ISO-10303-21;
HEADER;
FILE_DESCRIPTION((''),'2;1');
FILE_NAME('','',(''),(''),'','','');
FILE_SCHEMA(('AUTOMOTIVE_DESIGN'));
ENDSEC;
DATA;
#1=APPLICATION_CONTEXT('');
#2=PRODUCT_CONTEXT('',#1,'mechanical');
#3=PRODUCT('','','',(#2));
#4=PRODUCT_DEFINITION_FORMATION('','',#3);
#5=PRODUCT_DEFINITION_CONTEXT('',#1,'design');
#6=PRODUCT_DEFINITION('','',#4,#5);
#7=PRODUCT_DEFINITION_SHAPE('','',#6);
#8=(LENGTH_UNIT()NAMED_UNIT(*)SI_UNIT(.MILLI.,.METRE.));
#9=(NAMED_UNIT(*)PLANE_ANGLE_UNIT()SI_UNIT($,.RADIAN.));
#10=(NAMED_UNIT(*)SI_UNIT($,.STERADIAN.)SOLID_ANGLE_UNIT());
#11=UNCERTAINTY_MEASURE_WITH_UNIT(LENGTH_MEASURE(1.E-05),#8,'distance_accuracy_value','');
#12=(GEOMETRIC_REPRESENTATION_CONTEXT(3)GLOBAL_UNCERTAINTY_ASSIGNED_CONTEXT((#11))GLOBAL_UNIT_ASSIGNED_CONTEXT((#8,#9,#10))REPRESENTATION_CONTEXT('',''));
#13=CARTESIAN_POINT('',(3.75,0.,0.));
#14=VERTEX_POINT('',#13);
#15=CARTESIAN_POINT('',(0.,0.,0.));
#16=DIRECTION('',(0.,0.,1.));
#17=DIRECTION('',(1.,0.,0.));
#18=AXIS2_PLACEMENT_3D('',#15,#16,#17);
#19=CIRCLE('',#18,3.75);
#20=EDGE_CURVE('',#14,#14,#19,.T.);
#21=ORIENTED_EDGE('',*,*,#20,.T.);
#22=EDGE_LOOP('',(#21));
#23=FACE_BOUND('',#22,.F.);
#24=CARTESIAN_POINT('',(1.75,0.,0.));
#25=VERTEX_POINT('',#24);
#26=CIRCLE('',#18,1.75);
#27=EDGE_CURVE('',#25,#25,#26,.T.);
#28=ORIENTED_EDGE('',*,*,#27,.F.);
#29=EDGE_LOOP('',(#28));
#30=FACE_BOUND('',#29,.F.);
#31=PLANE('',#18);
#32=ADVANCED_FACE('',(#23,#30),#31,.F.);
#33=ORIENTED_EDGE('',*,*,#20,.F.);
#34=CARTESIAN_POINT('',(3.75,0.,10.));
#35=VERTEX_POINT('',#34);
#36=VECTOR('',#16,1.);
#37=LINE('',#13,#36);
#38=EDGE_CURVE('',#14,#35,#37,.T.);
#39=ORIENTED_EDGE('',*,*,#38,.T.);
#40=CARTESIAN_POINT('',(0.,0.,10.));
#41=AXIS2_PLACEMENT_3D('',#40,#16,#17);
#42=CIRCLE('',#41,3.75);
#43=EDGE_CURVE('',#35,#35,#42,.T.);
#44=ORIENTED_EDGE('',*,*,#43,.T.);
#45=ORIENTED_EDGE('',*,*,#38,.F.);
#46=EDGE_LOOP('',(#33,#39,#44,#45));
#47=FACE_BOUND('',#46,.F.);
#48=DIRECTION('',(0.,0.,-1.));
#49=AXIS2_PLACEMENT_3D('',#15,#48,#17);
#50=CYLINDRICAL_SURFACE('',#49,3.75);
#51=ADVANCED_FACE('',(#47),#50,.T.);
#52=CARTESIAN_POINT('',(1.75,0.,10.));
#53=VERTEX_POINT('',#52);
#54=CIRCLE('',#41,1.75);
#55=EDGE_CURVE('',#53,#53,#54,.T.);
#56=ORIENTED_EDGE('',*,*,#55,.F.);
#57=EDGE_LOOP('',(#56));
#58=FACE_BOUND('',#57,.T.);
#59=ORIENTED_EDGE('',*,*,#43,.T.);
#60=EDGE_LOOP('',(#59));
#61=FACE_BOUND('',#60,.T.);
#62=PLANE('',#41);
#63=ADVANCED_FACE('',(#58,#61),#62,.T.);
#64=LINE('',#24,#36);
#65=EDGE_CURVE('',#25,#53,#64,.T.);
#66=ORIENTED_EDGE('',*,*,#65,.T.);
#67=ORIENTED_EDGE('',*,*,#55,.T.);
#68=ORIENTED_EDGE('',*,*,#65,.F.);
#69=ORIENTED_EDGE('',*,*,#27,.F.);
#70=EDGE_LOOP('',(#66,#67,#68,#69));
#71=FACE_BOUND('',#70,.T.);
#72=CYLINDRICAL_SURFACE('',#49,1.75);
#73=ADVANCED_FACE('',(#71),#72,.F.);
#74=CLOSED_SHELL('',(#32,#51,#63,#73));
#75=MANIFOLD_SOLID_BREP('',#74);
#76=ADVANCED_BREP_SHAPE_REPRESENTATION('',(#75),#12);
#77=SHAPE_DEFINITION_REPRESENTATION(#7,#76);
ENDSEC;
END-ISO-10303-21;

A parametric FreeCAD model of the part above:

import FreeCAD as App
import Part
import Sketcher

doc = App.newDocument("Part")
body = doc.addObject("PartDesign::Body", "Body")

# Sketch on XY plane
sketch1 = body.newObject("Sketcher::SketchObject", "Sketch")
sketch1.AttachmentSupport = (doc.getObject("XY_Plane"), [""])
sketch1.MapMode = "FlatFace"
sketch1.addGeometry([
    Part.Circle(App.Vector(0, 0, 0), App.Vector(0, 0, 1), 3.75),
    Part.Circle(App.Vector(0, 0, 0), App.Vector(0, 0, 1), 1.75),
], False)
sketch1.addConstraint([
    Sketcher.Constraint("Coincident", 0, 3, -1, 1),
    Sketcher.Constraint("Coincident", 1, 3, -1, 1),
    Sketcher.Constraint("Diameter", 1, 3.5),
    Sketcher.Constraint("Diameter", 0, 7.5),
])
pad1 = body.newObject("PartDesign::Pad", "Pad")
pad1.Profile = sketch1
pad1.Length = 10

doc.recompute()
